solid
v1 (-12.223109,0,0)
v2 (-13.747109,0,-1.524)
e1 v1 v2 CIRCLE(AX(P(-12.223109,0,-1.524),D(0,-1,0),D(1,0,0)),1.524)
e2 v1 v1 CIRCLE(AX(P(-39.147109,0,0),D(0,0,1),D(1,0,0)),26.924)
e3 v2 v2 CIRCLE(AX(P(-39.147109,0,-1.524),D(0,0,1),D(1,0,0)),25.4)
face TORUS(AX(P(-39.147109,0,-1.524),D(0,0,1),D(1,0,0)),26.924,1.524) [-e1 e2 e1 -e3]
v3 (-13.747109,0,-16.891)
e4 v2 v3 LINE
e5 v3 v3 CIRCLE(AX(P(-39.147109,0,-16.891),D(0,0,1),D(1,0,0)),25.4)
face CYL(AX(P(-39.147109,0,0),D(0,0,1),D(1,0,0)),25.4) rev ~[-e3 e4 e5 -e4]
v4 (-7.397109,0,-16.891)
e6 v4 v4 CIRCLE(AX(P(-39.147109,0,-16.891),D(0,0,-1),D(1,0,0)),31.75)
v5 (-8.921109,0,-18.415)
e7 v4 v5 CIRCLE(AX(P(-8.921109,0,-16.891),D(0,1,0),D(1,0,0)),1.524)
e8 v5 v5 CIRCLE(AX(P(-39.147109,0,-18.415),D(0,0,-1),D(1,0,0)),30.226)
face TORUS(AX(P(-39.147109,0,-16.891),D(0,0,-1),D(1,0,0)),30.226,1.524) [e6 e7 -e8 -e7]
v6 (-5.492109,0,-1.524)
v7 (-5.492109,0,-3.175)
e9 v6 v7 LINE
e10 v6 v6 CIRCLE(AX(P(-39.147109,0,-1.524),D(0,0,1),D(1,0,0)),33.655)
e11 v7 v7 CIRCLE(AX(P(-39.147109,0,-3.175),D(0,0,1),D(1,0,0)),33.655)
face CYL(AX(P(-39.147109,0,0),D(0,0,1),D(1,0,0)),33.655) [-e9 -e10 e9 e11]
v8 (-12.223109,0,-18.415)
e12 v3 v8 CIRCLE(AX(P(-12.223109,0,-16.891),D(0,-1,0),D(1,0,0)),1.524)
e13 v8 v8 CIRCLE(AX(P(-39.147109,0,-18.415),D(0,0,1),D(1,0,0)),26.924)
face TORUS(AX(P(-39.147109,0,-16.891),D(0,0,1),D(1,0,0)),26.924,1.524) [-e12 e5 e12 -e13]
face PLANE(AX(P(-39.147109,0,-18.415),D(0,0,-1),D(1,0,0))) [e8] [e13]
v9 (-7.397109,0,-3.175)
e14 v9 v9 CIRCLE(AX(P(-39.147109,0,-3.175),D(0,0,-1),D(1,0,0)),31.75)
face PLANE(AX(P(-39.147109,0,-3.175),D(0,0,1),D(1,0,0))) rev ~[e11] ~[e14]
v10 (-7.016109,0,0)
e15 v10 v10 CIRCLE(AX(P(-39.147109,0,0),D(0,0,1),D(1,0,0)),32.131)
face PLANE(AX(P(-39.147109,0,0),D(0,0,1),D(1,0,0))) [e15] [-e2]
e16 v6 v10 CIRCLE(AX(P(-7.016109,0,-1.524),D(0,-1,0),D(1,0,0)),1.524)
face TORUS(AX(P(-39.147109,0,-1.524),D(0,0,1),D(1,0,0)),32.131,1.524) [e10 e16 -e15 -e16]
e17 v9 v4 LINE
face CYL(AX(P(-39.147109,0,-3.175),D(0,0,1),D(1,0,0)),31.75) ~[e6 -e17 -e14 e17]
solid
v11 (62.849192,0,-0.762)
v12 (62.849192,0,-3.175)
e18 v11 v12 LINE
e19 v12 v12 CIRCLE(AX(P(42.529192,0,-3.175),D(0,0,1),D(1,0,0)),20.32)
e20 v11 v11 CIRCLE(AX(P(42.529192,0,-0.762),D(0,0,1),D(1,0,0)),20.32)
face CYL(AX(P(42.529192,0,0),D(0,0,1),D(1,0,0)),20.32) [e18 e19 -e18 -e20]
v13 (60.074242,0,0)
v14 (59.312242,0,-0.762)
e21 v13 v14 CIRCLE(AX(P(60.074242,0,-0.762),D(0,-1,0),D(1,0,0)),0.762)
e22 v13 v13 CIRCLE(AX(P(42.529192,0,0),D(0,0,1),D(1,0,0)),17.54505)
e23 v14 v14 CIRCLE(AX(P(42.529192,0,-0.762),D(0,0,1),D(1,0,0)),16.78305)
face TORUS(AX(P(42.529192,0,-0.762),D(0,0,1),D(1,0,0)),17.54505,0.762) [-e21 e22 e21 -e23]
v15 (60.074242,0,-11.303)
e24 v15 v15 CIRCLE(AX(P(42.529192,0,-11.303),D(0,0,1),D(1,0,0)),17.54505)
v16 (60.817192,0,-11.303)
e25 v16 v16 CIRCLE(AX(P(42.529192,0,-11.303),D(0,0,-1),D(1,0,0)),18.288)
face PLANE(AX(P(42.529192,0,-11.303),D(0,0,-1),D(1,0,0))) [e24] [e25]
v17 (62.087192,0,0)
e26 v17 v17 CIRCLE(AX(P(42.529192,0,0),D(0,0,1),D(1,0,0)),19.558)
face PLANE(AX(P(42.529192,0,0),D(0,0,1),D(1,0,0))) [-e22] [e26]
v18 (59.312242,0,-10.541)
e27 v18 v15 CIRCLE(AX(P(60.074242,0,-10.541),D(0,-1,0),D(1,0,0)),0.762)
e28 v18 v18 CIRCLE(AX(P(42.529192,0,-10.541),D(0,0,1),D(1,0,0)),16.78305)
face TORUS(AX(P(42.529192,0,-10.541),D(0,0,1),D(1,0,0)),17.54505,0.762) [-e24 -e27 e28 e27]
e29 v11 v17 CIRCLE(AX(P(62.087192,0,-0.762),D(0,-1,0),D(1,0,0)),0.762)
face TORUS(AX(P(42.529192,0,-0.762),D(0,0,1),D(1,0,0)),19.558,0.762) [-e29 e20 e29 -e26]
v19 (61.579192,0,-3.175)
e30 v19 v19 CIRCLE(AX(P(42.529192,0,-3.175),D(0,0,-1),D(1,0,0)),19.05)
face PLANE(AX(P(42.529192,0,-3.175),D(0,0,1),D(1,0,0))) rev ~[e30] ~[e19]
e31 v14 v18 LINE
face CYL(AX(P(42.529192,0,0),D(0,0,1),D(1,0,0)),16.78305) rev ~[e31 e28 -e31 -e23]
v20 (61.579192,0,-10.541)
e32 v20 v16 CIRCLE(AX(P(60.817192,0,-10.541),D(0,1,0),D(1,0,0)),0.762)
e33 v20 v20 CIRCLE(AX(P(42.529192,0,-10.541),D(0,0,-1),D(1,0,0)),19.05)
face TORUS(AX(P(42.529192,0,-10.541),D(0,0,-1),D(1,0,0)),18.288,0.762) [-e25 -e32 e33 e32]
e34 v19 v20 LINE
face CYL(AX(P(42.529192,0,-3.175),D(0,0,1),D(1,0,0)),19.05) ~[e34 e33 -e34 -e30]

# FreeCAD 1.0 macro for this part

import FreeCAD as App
import Part
import Sketcher

V = App.Vector
Q = App.Units.Quantity


def edges_at(feature, points):
    """Names of the edges that pass closest to the given points."""
    edges = feature.Shape.Edges
    near = lambda p: min(range(len(edges)), key=lambda i: edges[i].distToShape(Part.Vertex(*p))[0])
    return sorted({f"Edge{near(p) + 1}" for p in points})

doc = App.newDocument("Part")
body = doc.addObject("PartDesign::Body", "Body")
body.AllowCompound = True

sketch1 = body.newObject("Sketcher::SketchObject", "Sketch")
sketch1.AttachmentSupport = (doc.getObject("XY_Plane"), [""])
sketch1.MapMode = "FlatFace"
sketch1.addGeometry([
    Part.Circle(V(-39.147109, 0, 0), V(0, 0, 1), 33.655),
    Part.Circle(V(42.529192, 0, 0), V(0, 0, 1), 20.32),
], False)
sketch1.addConstraint([
    Sketcher.Constraint("PointOnObject", 0, 3, -1),
    Sketcher.Constraint("PointOnObject", 1, 3, -1),
    Sketcher.Constraint("Diameter", 1, Q("1.6 in")),
    Sketcher.Constraint("Diameter", 0, Q("2.65 in")),
    Sketcher.Constraint("DistanceX", 0, 3, 1, 3, Q("81.676301 mm")),
    Sketcher.Constraint("DistanceX", 0, 3, -1, 1, Q("39.147109 mm")),
])
pad1 = body.newObject("PartDesign::Pad", "Pad")
pad1.Profile = sketch1
pad1.Length = Q("0.125 in")
pad1.Reversed = True

sketch2 = body.newObject("Sketcher::SketchObject", "Sketch001")
sketch2.AttachmentSupport = (doc.getObject("XY_Plane"), [""])
sketch2.MapMode = "FlatFace"
sketch2.AttachmentOffset = App.Placement(V(0, 0, -0.125 * 25.4), App.Rotation())
sketch2.addGeometry(Part.Circle(V(-39.147109, 0, 0), V(0, 0, 1), 31.75), False)
sketch2.addConstraint([
    Sketcher.Constraint("PointOnObject", 0, 3, -1),
    Sketcher.Constraint("Diameter", 0, Q("2.5 in")),
    Sketcher.Constraint("DistanceX", 0, 3, -1, 1, Q("39.147109 mm")),
])
pad2 = body.newObject("PartDesign::Pad", "Pad001")
pad2.Profile = sketch2
pad2.Length = Q("0.6 in")
pad2.Reversed = True

sketch3 = body.newObject("Sketcher::SketchObject", "Sketch002")
sketch3.AttachmentSupport = (doc.getObject("XY_Plane"), [""])
sketch3.MapMode = "FlatFace"
sketch3.AttachmentOffset = App.Placement(V(0, 0, -0.125 * 25.4), App.Rotation())
sketch3.addGeometry(Part.Circle(V(42.529192, 0, 0), V(0, 0, 1), 19.05), False)
sketch3.addConstraint([
    Sketcher.Constraint("PointOnObject", 0, 3, -1),
    Sketcher.Constraint("Diameter", 0, Q("1.5 in")),
    Sketcher.Constraint("DistanceX", -1, 1, 0, 3, Q("42.529192 mm")),
])
pad3 = body.newObject("PartDesign::Pad", "Pad002")
pad3.Profile = sketch3
pad3.Length = Q("0.32 in")
pad3.Reversed = True

sketch4 = body.newObject("Sketcher::SketchObject", "Sketch003")
sketch4.AttachmentSupport = (doc.getObject("XY_Plane"), [""])
sketch4.MapMode = "FlatFace"
sketch4.addGeometry(Part.Circle(V(-39.147109, 0, 0), V(0, 0, 1), 25.4), False)
sketch4.addConstraint([
    Sketcher.Constraint("PointOnObject", 0, 3, -1),
    Sketcher.Constraint("Diameter", 0, Q("2 in")),
    Sketcher.Constraint("DistanceX", 0, 3, -1, 1, Q("39.147109 mm")),
])
pocket1 = body.newObject("PartDesign::Pocket", "Pocket")
pocket1.Profile = sketch4
pocket1.Length = Q("1 in")

sketch5 = body.newObject("Sketcher::SketchObject", "Sketch004")
sketch5.AttachmentSupport = (doc.getObject("XY_Plane"), [""])
sketch5.MapMode = "FlatFace"
sketch5.addGeometry(Part.Circle(V(42.529192, 0, 0), V(0, 0, 1), 16.78305), False)
sketch5.addConstraint([
    Sketcher.Constraint("PointOnObject", 0, 3, -1),
    Sketcher.Constraint("Diameter", 0, Q("1.3215 in")),
    Sketcher.Constraint("DistanceX", -1, 1, 0, 3, Q("42.529192 mm")),
])
pocket2 = body.newObject("PartDesign::Pocket", "Pocket001")
pocket2.Profile = sketch5
pocket2.Length = Q("1 in")
doc.recompute()

fillet = body.newObject("PartDesign::Fillet", "Fillet")
fillet.Base = (pocket2, edges_at(pocket2, [
    (-64.547, 0, 0),
    (-72.802, 0, 0),
    (-64.547, 0, -18.415),
    (-70.897, 0, -18.415),
]))
fillet.Radius = Q("0.06 in")
doc.recompute()

fillet2 = body.newObject("PartDesign::Fillet", "Fillet001")
fillet2.Base = (fillet, edges_at(fillet, [
    (25.746, 0, 0),
    (22.209, 0, 0),
    (25.746, 0, -11.303),
    (23.479, 0, -11.303),
]))
fillet2.Radius = Q("0.03 in")

doc.recompute()
